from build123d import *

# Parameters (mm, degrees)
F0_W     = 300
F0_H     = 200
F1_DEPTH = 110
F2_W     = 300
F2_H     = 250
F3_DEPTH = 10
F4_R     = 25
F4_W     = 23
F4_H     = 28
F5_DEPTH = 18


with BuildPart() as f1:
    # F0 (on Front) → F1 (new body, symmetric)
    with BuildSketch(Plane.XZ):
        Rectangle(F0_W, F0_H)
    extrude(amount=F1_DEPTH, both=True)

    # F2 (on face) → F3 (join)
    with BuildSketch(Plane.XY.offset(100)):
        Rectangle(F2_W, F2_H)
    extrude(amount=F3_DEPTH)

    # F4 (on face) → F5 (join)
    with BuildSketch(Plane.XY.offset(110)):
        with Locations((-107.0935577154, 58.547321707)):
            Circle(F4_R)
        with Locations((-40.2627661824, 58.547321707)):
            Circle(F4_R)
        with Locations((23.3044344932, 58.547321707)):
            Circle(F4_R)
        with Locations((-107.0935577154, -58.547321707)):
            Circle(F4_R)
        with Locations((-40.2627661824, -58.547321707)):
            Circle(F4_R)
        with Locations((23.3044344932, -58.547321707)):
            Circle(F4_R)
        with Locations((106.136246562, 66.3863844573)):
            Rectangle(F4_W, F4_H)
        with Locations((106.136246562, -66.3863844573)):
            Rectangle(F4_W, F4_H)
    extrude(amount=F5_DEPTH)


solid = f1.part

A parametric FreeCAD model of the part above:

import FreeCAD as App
import Part
import Sketcher

V = App.Vector


def add_polygon(sketch, points):
    """Adds a closed chain of lines whose ends are joined by coincident constraints."""
    first, n = sketch.GeometryCount, len(points)
    for a, b in zip(points, points[1:] + points[:1]):
        sketch.addGeometry(Part.LineSegment(App.Vector(*a, 0), App.Vector(*b, 0)), False)
    for i in range(n):
        sketch.addConstraint(Sketcher.Constraint("Coincident", first + i, 2, first + (i + 1) % n, 1))

doc = App.newDocument("Part")
body = doc.addObject("PartDesign::Body", "Body")

# Sketch on XZ plane
sketch1 = doc.addObject("Sketcher::SketchObject", "Sketch")
body.addObject(sketch1)
sketch1.AttachmentSupport = (doc.XZ_Plane, [""])
sketch1.MapMode = "FlatFace"
add_polygon(sketch1, [(-150, 100), (-150, -100), (150, -100), (150, 100)])  # lines 0-3
sketch1.addConstraint([
    Sketcher.Constraint("Vertical", 0),
    Sketcher.Constraint("Horizontal", 1),
    Sketcher.Constraint("Vertical", 2),
    Sketcher.Constraint("Horizontal", 3),
    Sketcher.Constraint("Symmetric", 0, 2, 2, 2, -1, 1),
    Sketcher.Constraint("DistanceX", 1, 1, 1, 2, 300.0),
    Sketcher.Constraint("DistanceY", 0, 2, 0, 1, 200.0),
])
pad1 = doc.addObject("PartDesign::Pad", "Pad")
body.addObject(pad1)
pad1.Profile = sketch1
pad1.Length = 220
pad1.Midplane = True

# Sketch on XY plane
sketch2 = doc.addObject("Sketcher::SketchObject", "Sketch001")
body.addObject(sketch2)
sketch2.AttachmentSupport = (doc.XY_Plane, [""])
sketch2.MapMode = "FlatFace"
sketch2.AttachmentOffset = App.Placement(V(0, 0, 100), App.Rotation())
add_polygon(sketch2, [(-150, 125), (-150, -125), (150, -125), (150, 125)])  # lines 0-3
sketch2.addConstraint([
    Sketcher.Constraint("Vertical", 0),
    Sketcher.Constraint("Horizontal", 1),
    Sketcher.Constraint("Vertical", 2),
    Sketcher.Constraint("Horizontal", 3),
    Sketcher.Constraint("Symmetric", 0, 2, 2, 2, -1, 1),
    Sketcher.Constraint("DistanceX", 1, 1, 1, 2, 300.0),
    Sketcher.Constraint("DistanceY", 0, 2, 0, 1, 250.0),
])
pad2 = doc.addObject("PartDesign::Pad", "Pad001")
body.addObject(pad2)
pad2.Profile = sketch2
pad2.Length = 10

# Sketch on XY plane
sketch3 = doc.addObject("Sketcher::SketchObject", "Sketch002")
body.addObject(sketch3)
sketch3.AttachmentSupport = (doc.XY_Plane, [""])
sketch3.MapMode = "FlatFace"
sketch3.AttachmentOffset = App.Placement(V(0, 0, 110), App.Rotation())
sketch3.addGeometry(Part.Circle(V(-107.093558, 58.547322, 0), V(0, 0, 1), 25), False)  # 0
sketch3.addGeometry(Part.Circle(V(-40.262766, 58.547322, 0), V(0, 0, 1), 25), False)  # 1
sketch3.addGeometry(Part.Circle(V(23.304434, 58.547322, 0), V(0, 0, 1), 25), False)  # 2
sketch3.addGeometry(Part.Circle(V(-107.093558, -58.547322, 0), V(0, 0, 1), 25), False)  # 3
sketch3.addGeometry(Part.Circle(V(-40.262766, -58.547322, 0), V(0, 0, 1), 25), False)  # 4
sketch3.addGeometry(Part.Circle(V(23.304434, -58.547322, 0), V(0, 0, 1), 25), False)  # 5
add_polygon(sketch3, [(94.636247, 80.386384), (94.636247, 52.386384), (117.636247, 52.386384), (117.636247, 80.386384)])  # lines 6-9
add_polygon(sketch3, [(94.636247, -52.386384), (94.636247, -80.386384), (117.636247, -80.386384), (117.636247, -52.386384)])  # lines 10-13
sketch3.addConstraint([
    Sketcher.Constraint("Vertical", 6),
    Sketcher.Constraint("Horizontal", 7),
    Sketcher.Constraint("Vertical", 8),
    Sketcher.Constraint("Horizontal", 9),
    Sketcher.Constraint("Vertical", 10),
    Sketcher.Constraint("Horizontal", 11),
    Sketcher.Constraint("Vertical", 12),
    Sketcher.Constraint("Horizontal", 13),
    Sketcher.Constraint("Equal", 0, 1),
    Sketcher.Constraint("Equal", 1, 2),
    Sketcher.Constraint("Equal", 2, 3),
    Sketcher.Constraint("Equal", 3, 4),
    Sketcher.Constraint("Equal", 4, 5),
    Sketcher.Constraint("Symmetric", 0, 3, 3, 3, -1),
    Sketcher.Constraint("Symmetric", 1, 3, 4, 3, -1),
    Sketcher.Constraint("Symmetric", 2, 3, 5, 3, -1),
    Sketcher.Constraint("Symmetric", 9, 2, 10, 2, -1),
    Sketcher.Constraint("Symmetric", 7, 2, 12, 2, -1),
    Sketcher.Constraint("Horizontal", 0, 3, 1, 3),
    Sketcher.Constraint("Horizontal", 1, 3, 2, 3),
    Sketcher.Constraint("Diameter", 0, 50.0),
    Sketcher.Constraint("DistanceX", 7, 1, 7, 2, 23.0),
    Sketcher.Constraint("DistanceY", 6, 2, 6, 1, 28.0),
    Sketcher.Constraint("DistanceX", 1, 3, 2, 3, 63.567201),
    Sketcher.Constraint("DistanceY", -1, 1, 0, 3, 58.547322),
    Sketcher.Constraint("DistanceX", 0, 3, 1, 3, 66.830792),
    Sketcher.Constraint("DistanceY", 10, 2, 6, 2, 132.772769),
    Sketcher.Constraint("DistanceX", 0, 3, -1, 1, 107.093558),
    Sketcher.Constraint("DistanceX", -1, 1, 6, 2, 94.636247),
])
pad3 = doc.addObject("PartDesign::Pad", "Pad002")
body.addObject(pad3)
pad3.Profile = sketch3
pad3.Length = 18

doc.recompute()
